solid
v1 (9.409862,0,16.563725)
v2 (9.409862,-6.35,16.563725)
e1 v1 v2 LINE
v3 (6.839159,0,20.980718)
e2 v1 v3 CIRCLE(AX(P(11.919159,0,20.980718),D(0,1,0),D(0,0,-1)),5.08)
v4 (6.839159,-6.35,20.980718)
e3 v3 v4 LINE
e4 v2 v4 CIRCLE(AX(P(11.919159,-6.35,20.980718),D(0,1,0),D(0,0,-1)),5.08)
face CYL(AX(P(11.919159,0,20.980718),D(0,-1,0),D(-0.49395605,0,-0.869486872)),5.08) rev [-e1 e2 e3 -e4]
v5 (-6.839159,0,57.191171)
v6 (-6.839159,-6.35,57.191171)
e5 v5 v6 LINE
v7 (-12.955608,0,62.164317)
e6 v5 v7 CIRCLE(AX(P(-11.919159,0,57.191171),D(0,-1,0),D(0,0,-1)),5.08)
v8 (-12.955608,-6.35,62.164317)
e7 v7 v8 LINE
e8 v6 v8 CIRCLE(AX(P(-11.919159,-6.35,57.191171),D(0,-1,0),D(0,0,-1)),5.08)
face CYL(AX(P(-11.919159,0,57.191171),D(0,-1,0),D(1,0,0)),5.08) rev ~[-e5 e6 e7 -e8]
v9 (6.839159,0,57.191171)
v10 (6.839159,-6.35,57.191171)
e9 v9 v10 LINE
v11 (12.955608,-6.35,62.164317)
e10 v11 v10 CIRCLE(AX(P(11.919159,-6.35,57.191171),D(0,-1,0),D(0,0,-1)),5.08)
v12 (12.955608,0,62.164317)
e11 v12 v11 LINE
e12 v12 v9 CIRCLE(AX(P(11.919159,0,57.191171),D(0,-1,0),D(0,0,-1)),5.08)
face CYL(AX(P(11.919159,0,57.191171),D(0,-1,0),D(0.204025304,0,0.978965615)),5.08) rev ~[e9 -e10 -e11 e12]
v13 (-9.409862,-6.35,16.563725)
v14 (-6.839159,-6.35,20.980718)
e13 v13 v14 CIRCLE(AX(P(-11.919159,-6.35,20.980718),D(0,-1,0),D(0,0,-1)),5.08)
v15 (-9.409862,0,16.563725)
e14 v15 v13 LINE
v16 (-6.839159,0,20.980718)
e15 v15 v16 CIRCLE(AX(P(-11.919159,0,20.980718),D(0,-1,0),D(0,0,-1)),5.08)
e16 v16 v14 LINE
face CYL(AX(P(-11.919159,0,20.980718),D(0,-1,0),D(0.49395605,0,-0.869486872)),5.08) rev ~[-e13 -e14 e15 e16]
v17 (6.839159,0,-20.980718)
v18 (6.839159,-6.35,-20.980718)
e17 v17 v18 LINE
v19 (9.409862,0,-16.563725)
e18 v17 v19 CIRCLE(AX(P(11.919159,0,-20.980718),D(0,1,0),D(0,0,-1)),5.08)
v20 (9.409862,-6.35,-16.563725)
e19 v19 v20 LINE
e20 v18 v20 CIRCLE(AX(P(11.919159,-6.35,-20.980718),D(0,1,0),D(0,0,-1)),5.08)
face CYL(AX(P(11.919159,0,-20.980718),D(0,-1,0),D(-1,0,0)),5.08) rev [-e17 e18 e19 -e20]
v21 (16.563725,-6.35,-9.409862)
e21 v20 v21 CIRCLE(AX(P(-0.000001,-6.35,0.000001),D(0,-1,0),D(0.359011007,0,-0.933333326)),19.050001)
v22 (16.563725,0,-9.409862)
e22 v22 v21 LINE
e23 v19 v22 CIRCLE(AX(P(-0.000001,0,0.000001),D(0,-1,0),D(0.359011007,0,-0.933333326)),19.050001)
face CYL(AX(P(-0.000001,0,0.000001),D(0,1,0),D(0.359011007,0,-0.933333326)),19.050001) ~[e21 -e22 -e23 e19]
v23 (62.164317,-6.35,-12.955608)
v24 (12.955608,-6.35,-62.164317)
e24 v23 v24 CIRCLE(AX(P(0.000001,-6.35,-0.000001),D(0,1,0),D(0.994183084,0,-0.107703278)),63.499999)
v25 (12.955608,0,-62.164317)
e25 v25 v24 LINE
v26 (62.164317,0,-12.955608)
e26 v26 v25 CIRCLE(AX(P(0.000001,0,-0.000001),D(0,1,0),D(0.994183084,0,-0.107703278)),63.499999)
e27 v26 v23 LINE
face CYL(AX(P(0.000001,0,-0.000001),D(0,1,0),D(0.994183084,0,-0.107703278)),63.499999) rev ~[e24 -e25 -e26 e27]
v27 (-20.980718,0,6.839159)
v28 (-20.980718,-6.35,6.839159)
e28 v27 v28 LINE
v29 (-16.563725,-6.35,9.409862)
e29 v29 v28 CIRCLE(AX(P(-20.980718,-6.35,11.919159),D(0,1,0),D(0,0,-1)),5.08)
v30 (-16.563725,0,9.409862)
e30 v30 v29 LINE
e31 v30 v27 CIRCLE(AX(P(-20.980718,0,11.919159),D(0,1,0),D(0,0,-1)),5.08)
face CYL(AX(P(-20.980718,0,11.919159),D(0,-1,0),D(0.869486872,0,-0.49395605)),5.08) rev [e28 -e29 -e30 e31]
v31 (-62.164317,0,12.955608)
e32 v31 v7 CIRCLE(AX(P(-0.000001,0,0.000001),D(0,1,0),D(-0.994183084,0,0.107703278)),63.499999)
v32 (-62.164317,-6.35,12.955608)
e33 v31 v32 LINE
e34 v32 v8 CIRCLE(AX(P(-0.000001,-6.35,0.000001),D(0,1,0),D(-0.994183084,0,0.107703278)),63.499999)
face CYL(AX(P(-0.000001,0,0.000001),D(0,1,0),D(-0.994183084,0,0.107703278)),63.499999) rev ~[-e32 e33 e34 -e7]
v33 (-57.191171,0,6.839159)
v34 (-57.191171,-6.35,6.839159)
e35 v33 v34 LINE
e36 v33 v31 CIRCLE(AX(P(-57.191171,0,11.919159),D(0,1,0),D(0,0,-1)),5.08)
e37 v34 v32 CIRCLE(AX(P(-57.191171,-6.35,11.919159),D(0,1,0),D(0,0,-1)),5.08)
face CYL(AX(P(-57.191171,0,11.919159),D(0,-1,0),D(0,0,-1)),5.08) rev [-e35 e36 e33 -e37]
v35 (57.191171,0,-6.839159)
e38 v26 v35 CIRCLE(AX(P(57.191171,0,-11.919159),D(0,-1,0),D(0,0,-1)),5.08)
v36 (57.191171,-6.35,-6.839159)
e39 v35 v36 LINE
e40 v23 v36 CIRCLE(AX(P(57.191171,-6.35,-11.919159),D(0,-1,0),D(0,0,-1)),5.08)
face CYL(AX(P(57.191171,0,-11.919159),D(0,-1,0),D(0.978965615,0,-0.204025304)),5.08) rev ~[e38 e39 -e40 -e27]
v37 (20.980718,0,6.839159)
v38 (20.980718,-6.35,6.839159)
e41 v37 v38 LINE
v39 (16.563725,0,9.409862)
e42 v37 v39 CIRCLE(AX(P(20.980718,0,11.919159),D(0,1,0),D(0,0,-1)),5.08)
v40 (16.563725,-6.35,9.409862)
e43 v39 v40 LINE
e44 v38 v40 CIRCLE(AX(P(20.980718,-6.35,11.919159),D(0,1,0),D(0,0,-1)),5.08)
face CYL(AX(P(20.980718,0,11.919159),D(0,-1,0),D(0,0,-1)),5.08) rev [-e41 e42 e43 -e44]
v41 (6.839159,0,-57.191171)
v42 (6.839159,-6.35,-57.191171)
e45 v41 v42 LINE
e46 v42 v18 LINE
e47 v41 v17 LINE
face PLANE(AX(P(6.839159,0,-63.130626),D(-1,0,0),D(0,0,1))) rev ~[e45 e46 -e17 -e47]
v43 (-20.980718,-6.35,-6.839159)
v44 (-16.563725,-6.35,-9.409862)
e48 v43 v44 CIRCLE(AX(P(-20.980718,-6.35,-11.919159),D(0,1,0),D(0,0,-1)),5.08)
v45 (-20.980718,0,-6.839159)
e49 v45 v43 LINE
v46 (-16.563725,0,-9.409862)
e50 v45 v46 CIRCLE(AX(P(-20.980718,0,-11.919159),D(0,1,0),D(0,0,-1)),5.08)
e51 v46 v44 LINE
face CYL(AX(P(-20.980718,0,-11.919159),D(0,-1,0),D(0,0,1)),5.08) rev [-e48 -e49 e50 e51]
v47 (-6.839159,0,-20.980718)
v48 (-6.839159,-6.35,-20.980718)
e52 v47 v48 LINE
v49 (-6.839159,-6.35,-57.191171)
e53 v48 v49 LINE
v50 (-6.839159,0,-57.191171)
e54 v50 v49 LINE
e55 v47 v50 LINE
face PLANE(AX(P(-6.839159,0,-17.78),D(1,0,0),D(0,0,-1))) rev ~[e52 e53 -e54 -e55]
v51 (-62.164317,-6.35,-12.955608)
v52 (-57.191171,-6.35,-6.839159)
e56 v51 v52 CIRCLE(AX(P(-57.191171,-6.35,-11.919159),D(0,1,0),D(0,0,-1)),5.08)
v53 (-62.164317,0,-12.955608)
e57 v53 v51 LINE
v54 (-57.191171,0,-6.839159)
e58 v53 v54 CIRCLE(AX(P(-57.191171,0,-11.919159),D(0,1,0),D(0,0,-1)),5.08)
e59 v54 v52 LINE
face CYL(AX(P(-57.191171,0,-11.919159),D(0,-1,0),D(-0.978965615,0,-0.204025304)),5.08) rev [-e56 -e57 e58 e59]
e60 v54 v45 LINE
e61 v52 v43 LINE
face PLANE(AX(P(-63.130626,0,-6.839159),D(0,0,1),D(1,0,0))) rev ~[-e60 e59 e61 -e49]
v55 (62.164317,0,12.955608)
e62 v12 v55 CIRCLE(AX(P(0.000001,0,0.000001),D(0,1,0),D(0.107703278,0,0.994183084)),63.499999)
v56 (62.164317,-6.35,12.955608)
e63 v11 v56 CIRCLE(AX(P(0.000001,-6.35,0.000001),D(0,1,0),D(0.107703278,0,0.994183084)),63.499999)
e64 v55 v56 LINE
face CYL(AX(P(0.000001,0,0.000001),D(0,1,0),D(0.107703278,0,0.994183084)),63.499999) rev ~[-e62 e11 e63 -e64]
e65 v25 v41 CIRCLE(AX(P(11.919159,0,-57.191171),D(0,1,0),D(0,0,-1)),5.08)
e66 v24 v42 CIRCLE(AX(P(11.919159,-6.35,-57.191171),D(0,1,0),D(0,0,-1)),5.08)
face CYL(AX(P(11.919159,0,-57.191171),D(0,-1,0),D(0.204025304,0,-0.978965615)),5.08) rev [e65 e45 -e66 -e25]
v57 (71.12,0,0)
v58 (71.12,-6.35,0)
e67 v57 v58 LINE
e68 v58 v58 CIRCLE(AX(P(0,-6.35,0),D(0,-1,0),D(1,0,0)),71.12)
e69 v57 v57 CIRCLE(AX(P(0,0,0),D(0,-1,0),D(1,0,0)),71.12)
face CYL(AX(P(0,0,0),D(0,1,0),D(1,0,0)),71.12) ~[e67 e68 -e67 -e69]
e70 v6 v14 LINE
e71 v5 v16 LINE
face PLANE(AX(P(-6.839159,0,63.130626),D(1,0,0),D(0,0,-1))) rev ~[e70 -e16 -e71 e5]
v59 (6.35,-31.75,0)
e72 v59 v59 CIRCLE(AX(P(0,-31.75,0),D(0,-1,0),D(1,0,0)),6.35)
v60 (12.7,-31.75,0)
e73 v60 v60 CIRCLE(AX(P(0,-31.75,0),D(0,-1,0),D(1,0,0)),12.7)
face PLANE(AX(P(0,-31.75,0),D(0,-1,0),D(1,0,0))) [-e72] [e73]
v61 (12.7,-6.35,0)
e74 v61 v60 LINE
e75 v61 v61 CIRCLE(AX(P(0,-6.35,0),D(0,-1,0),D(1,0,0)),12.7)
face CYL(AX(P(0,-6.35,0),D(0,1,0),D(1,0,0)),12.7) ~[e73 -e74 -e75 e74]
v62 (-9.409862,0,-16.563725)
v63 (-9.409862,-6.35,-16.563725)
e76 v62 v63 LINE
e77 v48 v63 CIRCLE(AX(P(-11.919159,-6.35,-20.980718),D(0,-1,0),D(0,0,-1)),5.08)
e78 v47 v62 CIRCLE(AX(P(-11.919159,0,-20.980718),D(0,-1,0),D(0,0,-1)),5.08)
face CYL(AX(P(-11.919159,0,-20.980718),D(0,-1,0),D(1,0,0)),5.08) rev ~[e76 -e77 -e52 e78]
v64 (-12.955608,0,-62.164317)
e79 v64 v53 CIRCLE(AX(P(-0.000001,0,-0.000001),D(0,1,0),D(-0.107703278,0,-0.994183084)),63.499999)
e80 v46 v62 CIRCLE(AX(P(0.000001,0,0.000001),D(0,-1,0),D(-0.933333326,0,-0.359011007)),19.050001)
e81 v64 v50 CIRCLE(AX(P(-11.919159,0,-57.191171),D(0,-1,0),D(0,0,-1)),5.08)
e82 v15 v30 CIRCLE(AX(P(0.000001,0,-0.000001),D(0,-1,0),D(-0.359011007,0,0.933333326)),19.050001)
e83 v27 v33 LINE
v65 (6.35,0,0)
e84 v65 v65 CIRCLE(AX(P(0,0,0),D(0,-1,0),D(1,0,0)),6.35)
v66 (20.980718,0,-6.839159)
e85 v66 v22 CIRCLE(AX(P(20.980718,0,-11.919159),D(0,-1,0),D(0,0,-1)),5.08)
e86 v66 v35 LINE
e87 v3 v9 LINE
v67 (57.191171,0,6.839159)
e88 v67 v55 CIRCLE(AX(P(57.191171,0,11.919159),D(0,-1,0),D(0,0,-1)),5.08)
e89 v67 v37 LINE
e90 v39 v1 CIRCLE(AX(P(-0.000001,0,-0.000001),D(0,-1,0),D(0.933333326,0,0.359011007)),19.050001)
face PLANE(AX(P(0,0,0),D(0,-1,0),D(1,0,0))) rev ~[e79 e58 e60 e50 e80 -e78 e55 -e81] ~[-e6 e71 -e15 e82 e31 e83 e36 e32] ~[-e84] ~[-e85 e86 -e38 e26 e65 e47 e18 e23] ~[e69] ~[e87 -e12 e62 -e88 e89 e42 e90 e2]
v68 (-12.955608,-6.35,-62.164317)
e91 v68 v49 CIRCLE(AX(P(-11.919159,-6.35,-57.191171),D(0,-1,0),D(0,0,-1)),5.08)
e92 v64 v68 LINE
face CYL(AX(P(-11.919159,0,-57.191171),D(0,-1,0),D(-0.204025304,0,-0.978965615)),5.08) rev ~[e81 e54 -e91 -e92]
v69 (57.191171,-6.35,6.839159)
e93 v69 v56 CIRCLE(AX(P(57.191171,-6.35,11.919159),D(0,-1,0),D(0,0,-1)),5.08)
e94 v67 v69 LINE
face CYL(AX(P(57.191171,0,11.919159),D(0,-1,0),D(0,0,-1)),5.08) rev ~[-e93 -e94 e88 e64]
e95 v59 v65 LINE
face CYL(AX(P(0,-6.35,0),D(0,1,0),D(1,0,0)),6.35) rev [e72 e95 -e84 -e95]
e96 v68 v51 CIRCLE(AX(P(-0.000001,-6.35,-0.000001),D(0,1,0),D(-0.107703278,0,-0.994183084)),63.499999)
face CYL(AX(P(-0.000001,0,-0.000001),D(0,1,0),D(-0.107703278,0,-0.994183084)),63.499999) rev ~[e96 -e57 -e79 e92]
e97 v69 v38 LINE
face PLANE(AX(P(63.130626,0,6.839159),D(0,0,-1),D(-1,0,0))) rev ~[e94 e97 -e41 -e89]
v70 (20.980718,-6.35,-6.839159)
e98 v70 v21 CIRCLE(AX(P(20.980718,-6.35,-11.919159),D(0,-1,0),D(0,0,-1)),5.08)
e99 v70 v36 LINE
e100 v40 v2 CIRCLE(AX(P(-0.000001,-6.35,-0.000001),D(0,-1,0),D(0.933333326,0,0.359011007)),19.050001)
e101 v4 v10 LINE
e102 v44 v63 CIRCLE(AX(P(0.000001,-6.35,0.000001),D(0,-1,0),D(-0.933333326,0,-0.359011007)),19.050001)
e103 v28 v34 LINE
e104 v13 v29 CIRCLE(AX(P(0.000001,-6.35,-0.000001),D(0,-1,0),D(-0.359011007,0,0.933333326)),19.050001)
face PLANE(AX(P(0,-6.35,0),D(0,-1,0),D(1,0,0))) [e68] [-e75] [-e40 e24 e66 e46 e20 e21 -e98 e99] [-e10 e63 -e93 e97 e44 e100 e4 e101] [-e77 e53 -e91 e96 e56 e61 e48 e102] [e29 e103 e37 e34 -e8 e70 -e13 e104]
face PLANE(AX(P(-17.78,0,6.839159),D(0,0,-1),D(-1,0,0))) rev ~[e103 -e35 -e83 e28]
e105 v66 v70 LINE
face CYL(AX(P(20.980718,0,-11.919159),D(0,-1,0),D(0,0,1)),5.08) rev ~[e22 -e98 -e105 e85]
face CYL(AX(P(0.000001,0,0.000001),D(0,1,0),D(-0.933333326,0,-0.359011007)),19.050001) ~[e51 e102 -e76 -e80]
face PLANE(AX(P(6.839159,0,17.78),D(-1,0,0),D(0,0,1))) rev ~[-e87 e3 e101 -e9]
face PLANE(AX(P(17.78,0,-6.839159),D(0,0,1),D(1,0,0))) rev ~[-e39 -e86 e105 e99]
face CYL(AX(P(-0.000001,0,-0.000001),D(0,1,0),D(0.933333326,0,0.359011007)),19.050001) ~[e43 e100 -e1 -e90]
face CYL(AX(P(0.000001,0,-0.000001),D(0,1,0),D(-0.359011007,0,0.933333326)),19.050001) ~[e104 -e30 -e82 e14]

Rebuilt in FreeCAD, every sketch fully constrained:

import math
import FreeCAD as App
import Part
import Sketcher

V = App.Vector
Q = App.Units.Quantity


def edges_at(feature, points):
    """Names of the edges that pass closest to the given points."""
    edges = feature.Shape.Edges
    near = lambda p: min(range(len(edges)), key=lambda i: edges[i].distToShape(Part.Vertex(*p))[0])
    return sorted({f"Edge{near(p) + 1}" for p in points})

doc = App.newDocument("Part")
params = doc.addObject("Spreadsheet::Sheet", "Params")
for row, (alias, value) in enumerate([
    ("sketch1_diameter", "5.6 in"),
    ("sketch1_diameter2", "0.5 in"),
    ("sketch1_radius", "2.5 in"),
    ("sketch1_radius2", "0.7500001 in"),
    ("pad1_length", "0.25 in"),
    ("sketch2_diameter", "1 in"),
    ("sketch2_diameter2", "0.5 in"),
    ("pad2_length", "1 in"),
    ("fillet_radius", "0.2 in"),
], start=1):
    params.set(f"A{row}", alias)
    params.set(f"B{row}", "=" + value)
    params.setAlias(f"B{row}", alias)

body = doc.addObject("PartDesign::Body", "Body")

# Sketch on XZ plane
sketch1 = body.newObject("Sketcher::SketchObject", "Sketch")
sketch1.AttachmentSupport = (doc.getObject("XZ_Plane"), [""])
sketch1.MapMode = "FlatFace"
sketch1.addGeometry(Part.Circle(V(0, 0, 0), V(0, 0, 1), 71), False)
sketch1.addGeometry(Part.ArcOfCircle(Part.Circle(V(0, 0, 0), V(0, 0, 1), 19), math.radians(-159), math.radians(-111)), False)
sketch1.addGeometry(Part.LineSegment(V(-7, -18, 0), V(-7, -63, 0)), False)
sketch1.addGeometry(Part.ArcOfCircle(Part.Circle(V(0, 0, 0), V(0, 0, 1), 63), math.radians(-174), math.radians(-96)), False)
sketch1.addGeometry(Part.LineSegment(V(-63, -7, 0), V(-18, -7, 0)), False)
sketch1.addGeometry(Part.ArcOfCircle(Part.Circle(V(0, 0, 0), V(0, 0, 1), 19), math.radians(-69), math.radians(-21)), False)
sketch1.addGeometry(Part.LineSegment(V(18, -7, 0), V(63, -7, 0)), False)
sketch1.addGeometry(Part.ArcOfCircle(Part.Circle(V(0, 0, 0), V(0, 0, 1), 63), math.radians(-84), math.radians(-6)), False)
sketch1.addGeometry(Part.LineSegment(V(7, -63, 0), V(7, -18, 0)), False)
sketch1.addGeometry(Part.ArcOfCircle(Part.Circle(V(0, 0, 0), V(0, 0, 1), 63), math.radians(96), math.radians(174)), False)
sketch1.addGeometry(Part.LineSegment(V(-7, 63, 0), V(-7, 18, 0)), False)
sketch1.addGeometry(Part.ArcOfCircle(Part.Circle(V(0, 0, 0), V(0, 0, 1), 19), math.radians(111), math.radians(159)), False)
sketch1.addGeometry(Part.LineSegment(V(-18, 7, 0), V(-63, 7, 0)), False)
sketch1.addGeometry(Part.Circle(V(0, 0, 0), V(0, 0, 1), 6), False)
sketch1.addGeometry(Part.LineSegment(V(7, 18, 0), V(7, 63, 0)), False)
sketch1.addGeometry(Part.ArcOfCircle(Part.Circle(V(0, 0, 0), V(0, 0, 1), 63), math.radians(6), math.radians(84)), False)
sketch1.addGeometry(Part.LineSegment(V(63, 7, 0), V(18, 7, 0)), False)
sketch1.addGeometry(Part.ArcOfCircle(Part.Circle(V(0, 0, 0), V(0, 0, 1), 19), math.radians(21), math.radians(69)), False)
sketch1.addConstraint(Sketcher.Constraint("Coincident", 1, 2, 2, 1))
sketch1.addConstraint(Sketcher.Constraint("Coincident", 2, 2, 3, 2))
sketch1.addConstraint(Sketcher.Constraint("Coincident", 3, 1, 4, 1))
sketch1.addConstraint(Sketcher.Constraint("Coincident", 4, 2, 1, 1))
sketch1.addConstraint(Sketcher.Constraint("Coincident", 5, 2, 6, 1))
sketch1.addConstraint(Sketcher.Constraint("Coincident", 6, 2, 7, 2))
sketch1.addConstraint(Sketcher.Constraint("Coincident", 7, 1, 8, 1))
sketch1.addConstraint(Sketcher.Constraint("Coincident", 8, 2, 5, 1))
sketch1.addConstraint(Sketcher.Constraint("Coincident", 9, 1, 10, 1))
sketch1.addConstraint(Sketcher.Constraint("Coincident", 10, 2, 11, 1))
sketch1.addConstraint(Sketcher.Constraint("Coincident", 11, 2, 12, 1))
sketch1.addConstraint(Sketcher.Constraint("Coincident", 12, 2, 9, 2))
sketch1.addConstraint(Sketcher.Constraint("Coincident", 14, 2, 15, 2))
sketch1.addConstraint(Sketcher.Constraint("Coincident", 15, 1, 16, 1))
sketch1.addConstraint(Sketcher.Constraint("Coincident", 16, 2, 17, 1))
sketch1.addConstraint(Sketcher.Constraint("Coincident", 17, 2, 14, 1))
sketch1.addConstraint(Sketcher.Constraint("Vertical", 2))
sketch1.addConstraint(Sketcher.Constraint("Horizontal", 4))
sketch1.addConstraint(Sketcher.Constraint("Horizontal", 6))
sketch1.addConstraint(Sketcher.Constraint("Vertical", 8))
sketch1.addConstraint(Sketcher.Constraint("Vertical", 10))
sketch1.addConstraint(Sketcher.Constraint("Horizontal", 12))
sketch1.addConstraint(Sketcher.Constraint("Vertical", 14))
sketch1.addConstraint(Sketcher.Constraint("Horizontal", 16))
sketch1.addConstraint(Sketcher.Constraint("Coincident", 0, 3, -1, 1))
sketch1.addConstraint(Sketcher.Constraint("Coincident", 1, 3, -1, 1))
sketch1.addConstraint(Sketcher.Constraint("Coincident", 3, 3, -1, 1))
sketch1.addConstraint(Sketcher.Constraint("Coincident", 5, 3, -1, 1))
sketch1.addConstraint(Sketcher.Constraint("Coincident", 7, 3, -1, 1))
sketch1.addConstraint(Sketcher.Constraint("Coincident", 9, 3, -1, 1))
sketch1.addConstraint(Sketcher.Constraint("Coincident", 11, 3, -1, 1))
sketch1.addConstraint(Sketcher.Constraint("Coincident", 13, 3, -1, 1))
sketch1.addConstraint(Sketcher.Constraint("Coincident", 15, 3, -1, 1))
sketch1.addConstraint(Sketcher.Constraint("Coincident", 17, 3, -1, 1))
sketch1.addConstraint(Sketcher.Constraint("Equal", 1, 5))
sketch1.addConstraint(Sketcher.Constraint("Equal", 3, 7))
sketch1.addConstraint(Sketcher.Constraint("Equal", 7, 9))
sketch1.addConstraint(Sketcher.Constraint("Equal", 5, 11))
sketch1.addConstraint(Sketcher.Constraint("Equal", 9, 15))
sketch1.addConstraint(Sketcher.Constraint("Equal", 11, 17))
sketch1.addConstraint(Sketcher.Constraint("Horizontal", 4, 2, 5, 2))
sketch1.addConstraint(Sketcher.Constraint("Horizontal", 2, 2, 7, 1))
sketch1.addConstraint(Sketcher.Constraint("Horizontal", 9, 1, 14, 2))
sketch1.addConstraint(Sketcher.Constraint("Horizontal", 12, 2, 15, 1))
sketch1.addConstraint(Sketcher.Constraint("Vertical", 2, 2, 9, 1))
sketch1.addConstraint(Sketcher.Constraint("Vertical", 4, 2, 11, 2))
sketch1.addConstraint(Sketcher.Constraint("Equal", 16, 2))
sketch1.addConstraint(Sketcher.Constraint("Diameter", 0, Q("5.6 in")))
sketch1.addConstraint(Sketcher.Constraint("Diameter", 13, Q("0.5 in")))
sketch1.addConstraint(Sketcher.Constraint("Radius", 3, Q("2.5 in")))
sketch1.addConstraint(Sketcher.Constraint("Radius", 1, Q("0.7500001 in")))
sketch1.addConstraint(Sketcher.Constraint("DistanceY", 1, 2, -1, 1, Q("0.7 in")))
sketch1.setExpression("Constraints[47]", "Params.sketch1_diameter")
sketch1.setExpression("Constraints[48]", "Params.sketch1_diameter2")
sketch1.setExpression("Constraints[49]", "Params.sketch1_radius")
sketch1.setExpression("Constraints[50]", "Params.sketch1_radius2")
pad1 = body.newObject("PartDesign::Pad", "Pad")
pad1.Profile = sketch1
pad1.setExpression("Length", "Params.pad1_length")

# Sketch on XZ plane
sketch2 = body.newObject("Sketcher::SketchObject", "Sketch001")
sketch2.AttachmentSupport = (doc.getObject("XZ_Plane"), [""])
sketch2.MapMode = "FlatFace"
sketch2.AttachmentOffset = App.Placement(V(0, 0, 0.25 * 25.4), App.Rotation())
sketch2.addGeometry(Part.Circle(V(0, 0, 0), V(0, 0, 1), 13), False)
sketch2.addGeometry(Part.Circle(V(0, 0, 0), V(0, 0, 1), 6), False)
sketch2.addConstraint(Sketcher.Constraint("Coincident", 0, 3, -1, 1))
sketch2.addConstraint(Sketcher.Constraint("Coincident", 1, 3, -1, 1))
sketch2.addConstraint(Sketcher.Constraint("Diameter", 0, Q("1 in")))
sketch2.addConstraint(Sketcher.Constraint("Diameter", 1, Q("0.5 in")))
sketch2.setExpression("Constraints[2]", "Params.sketch2_diameter")
sketch2.setExpression("Constraints[3]", "Params.sketch2_diameter2")
pad2 = body.newObject("PartDesign::Pad", "Pad001")
pad2.Profile = sketch2
pad2.setExpression("Length", "Params.pad2_length")
doc.recompute()

fillet = body.newObject("PartDesign::Fillet", "Fillet")
fillet.Base = (pad2, edges_at(pad2, [
    (6.839, -3.175, 63.131),
    (6.839, -3.175, 17.78),
    (17.78, -3.175, 6.839),
    (63.131, -3.175, 6.839),
    (17.78, -3.175, -6.839),
    (6.839, -3.175, -17.78),
    (63.131, -3.175, -6.839),
    (6.839, -3.175, -63.131),
    (-6.839, -3.175, -63.131),
    (-17.78, -3.175, -6.839),
    (-6.839, -3.175, -17.78),
    (-63.131, -3.175, -6.839),
    (-17.78, -3.175, 6.839),
    (-63.131, -3.175, 6.839),
    (-6.839, -3.175, 63.131),
    (-6.839, -3.175, 17.78),
]))
fillet.setExpression("Radius", "Params.fillet_radius")

doc.recompute()
